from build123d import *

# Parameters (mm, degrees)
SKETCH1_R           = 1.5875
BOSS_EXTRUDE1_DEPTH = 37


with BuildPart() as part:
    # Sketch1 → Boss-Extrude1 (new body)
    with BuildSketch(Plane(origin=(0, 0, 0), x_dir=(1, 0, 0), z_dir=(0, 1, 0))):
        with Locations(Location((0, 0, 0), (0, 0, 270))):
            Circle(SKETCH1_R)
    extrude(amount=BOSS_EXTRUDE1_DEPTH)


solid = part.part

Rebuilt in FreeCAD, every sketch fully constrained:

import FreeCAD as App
import Part
import Sketcher

doc = App.newDocument("Part")
body = doc.addObject("PartDesign::Body", "Body")

# Sketch on XZ plane
sketch1 = doc.addObject("Sketcher::SketchObject", "Sketch")
body.addObject(sketch1)
sketch1.AttachmentSupport = (doc.XZ_Plane, [""])
sketch1.MapMode = "FlatFace"
sketch1.addGeometry(Part.Circle(App.Vector(0, 0, 0), App.Vector(0, 0, 1), 1.6), False)
sketch1.addConstraint(Sketcher.Constraint("Coincident", 0, 3, -1, 1))
sketch1.addConstraint(Sketcher.Constraint("Diameter", 0, 3.175))
pad1 = doc.addObject("PartDesign::Pad", "Pad")
body.addObject(pad1)
pad1.Profile = sketch1
pad1.Length = 37
pad1.Reversed = True

doc.recompute()
